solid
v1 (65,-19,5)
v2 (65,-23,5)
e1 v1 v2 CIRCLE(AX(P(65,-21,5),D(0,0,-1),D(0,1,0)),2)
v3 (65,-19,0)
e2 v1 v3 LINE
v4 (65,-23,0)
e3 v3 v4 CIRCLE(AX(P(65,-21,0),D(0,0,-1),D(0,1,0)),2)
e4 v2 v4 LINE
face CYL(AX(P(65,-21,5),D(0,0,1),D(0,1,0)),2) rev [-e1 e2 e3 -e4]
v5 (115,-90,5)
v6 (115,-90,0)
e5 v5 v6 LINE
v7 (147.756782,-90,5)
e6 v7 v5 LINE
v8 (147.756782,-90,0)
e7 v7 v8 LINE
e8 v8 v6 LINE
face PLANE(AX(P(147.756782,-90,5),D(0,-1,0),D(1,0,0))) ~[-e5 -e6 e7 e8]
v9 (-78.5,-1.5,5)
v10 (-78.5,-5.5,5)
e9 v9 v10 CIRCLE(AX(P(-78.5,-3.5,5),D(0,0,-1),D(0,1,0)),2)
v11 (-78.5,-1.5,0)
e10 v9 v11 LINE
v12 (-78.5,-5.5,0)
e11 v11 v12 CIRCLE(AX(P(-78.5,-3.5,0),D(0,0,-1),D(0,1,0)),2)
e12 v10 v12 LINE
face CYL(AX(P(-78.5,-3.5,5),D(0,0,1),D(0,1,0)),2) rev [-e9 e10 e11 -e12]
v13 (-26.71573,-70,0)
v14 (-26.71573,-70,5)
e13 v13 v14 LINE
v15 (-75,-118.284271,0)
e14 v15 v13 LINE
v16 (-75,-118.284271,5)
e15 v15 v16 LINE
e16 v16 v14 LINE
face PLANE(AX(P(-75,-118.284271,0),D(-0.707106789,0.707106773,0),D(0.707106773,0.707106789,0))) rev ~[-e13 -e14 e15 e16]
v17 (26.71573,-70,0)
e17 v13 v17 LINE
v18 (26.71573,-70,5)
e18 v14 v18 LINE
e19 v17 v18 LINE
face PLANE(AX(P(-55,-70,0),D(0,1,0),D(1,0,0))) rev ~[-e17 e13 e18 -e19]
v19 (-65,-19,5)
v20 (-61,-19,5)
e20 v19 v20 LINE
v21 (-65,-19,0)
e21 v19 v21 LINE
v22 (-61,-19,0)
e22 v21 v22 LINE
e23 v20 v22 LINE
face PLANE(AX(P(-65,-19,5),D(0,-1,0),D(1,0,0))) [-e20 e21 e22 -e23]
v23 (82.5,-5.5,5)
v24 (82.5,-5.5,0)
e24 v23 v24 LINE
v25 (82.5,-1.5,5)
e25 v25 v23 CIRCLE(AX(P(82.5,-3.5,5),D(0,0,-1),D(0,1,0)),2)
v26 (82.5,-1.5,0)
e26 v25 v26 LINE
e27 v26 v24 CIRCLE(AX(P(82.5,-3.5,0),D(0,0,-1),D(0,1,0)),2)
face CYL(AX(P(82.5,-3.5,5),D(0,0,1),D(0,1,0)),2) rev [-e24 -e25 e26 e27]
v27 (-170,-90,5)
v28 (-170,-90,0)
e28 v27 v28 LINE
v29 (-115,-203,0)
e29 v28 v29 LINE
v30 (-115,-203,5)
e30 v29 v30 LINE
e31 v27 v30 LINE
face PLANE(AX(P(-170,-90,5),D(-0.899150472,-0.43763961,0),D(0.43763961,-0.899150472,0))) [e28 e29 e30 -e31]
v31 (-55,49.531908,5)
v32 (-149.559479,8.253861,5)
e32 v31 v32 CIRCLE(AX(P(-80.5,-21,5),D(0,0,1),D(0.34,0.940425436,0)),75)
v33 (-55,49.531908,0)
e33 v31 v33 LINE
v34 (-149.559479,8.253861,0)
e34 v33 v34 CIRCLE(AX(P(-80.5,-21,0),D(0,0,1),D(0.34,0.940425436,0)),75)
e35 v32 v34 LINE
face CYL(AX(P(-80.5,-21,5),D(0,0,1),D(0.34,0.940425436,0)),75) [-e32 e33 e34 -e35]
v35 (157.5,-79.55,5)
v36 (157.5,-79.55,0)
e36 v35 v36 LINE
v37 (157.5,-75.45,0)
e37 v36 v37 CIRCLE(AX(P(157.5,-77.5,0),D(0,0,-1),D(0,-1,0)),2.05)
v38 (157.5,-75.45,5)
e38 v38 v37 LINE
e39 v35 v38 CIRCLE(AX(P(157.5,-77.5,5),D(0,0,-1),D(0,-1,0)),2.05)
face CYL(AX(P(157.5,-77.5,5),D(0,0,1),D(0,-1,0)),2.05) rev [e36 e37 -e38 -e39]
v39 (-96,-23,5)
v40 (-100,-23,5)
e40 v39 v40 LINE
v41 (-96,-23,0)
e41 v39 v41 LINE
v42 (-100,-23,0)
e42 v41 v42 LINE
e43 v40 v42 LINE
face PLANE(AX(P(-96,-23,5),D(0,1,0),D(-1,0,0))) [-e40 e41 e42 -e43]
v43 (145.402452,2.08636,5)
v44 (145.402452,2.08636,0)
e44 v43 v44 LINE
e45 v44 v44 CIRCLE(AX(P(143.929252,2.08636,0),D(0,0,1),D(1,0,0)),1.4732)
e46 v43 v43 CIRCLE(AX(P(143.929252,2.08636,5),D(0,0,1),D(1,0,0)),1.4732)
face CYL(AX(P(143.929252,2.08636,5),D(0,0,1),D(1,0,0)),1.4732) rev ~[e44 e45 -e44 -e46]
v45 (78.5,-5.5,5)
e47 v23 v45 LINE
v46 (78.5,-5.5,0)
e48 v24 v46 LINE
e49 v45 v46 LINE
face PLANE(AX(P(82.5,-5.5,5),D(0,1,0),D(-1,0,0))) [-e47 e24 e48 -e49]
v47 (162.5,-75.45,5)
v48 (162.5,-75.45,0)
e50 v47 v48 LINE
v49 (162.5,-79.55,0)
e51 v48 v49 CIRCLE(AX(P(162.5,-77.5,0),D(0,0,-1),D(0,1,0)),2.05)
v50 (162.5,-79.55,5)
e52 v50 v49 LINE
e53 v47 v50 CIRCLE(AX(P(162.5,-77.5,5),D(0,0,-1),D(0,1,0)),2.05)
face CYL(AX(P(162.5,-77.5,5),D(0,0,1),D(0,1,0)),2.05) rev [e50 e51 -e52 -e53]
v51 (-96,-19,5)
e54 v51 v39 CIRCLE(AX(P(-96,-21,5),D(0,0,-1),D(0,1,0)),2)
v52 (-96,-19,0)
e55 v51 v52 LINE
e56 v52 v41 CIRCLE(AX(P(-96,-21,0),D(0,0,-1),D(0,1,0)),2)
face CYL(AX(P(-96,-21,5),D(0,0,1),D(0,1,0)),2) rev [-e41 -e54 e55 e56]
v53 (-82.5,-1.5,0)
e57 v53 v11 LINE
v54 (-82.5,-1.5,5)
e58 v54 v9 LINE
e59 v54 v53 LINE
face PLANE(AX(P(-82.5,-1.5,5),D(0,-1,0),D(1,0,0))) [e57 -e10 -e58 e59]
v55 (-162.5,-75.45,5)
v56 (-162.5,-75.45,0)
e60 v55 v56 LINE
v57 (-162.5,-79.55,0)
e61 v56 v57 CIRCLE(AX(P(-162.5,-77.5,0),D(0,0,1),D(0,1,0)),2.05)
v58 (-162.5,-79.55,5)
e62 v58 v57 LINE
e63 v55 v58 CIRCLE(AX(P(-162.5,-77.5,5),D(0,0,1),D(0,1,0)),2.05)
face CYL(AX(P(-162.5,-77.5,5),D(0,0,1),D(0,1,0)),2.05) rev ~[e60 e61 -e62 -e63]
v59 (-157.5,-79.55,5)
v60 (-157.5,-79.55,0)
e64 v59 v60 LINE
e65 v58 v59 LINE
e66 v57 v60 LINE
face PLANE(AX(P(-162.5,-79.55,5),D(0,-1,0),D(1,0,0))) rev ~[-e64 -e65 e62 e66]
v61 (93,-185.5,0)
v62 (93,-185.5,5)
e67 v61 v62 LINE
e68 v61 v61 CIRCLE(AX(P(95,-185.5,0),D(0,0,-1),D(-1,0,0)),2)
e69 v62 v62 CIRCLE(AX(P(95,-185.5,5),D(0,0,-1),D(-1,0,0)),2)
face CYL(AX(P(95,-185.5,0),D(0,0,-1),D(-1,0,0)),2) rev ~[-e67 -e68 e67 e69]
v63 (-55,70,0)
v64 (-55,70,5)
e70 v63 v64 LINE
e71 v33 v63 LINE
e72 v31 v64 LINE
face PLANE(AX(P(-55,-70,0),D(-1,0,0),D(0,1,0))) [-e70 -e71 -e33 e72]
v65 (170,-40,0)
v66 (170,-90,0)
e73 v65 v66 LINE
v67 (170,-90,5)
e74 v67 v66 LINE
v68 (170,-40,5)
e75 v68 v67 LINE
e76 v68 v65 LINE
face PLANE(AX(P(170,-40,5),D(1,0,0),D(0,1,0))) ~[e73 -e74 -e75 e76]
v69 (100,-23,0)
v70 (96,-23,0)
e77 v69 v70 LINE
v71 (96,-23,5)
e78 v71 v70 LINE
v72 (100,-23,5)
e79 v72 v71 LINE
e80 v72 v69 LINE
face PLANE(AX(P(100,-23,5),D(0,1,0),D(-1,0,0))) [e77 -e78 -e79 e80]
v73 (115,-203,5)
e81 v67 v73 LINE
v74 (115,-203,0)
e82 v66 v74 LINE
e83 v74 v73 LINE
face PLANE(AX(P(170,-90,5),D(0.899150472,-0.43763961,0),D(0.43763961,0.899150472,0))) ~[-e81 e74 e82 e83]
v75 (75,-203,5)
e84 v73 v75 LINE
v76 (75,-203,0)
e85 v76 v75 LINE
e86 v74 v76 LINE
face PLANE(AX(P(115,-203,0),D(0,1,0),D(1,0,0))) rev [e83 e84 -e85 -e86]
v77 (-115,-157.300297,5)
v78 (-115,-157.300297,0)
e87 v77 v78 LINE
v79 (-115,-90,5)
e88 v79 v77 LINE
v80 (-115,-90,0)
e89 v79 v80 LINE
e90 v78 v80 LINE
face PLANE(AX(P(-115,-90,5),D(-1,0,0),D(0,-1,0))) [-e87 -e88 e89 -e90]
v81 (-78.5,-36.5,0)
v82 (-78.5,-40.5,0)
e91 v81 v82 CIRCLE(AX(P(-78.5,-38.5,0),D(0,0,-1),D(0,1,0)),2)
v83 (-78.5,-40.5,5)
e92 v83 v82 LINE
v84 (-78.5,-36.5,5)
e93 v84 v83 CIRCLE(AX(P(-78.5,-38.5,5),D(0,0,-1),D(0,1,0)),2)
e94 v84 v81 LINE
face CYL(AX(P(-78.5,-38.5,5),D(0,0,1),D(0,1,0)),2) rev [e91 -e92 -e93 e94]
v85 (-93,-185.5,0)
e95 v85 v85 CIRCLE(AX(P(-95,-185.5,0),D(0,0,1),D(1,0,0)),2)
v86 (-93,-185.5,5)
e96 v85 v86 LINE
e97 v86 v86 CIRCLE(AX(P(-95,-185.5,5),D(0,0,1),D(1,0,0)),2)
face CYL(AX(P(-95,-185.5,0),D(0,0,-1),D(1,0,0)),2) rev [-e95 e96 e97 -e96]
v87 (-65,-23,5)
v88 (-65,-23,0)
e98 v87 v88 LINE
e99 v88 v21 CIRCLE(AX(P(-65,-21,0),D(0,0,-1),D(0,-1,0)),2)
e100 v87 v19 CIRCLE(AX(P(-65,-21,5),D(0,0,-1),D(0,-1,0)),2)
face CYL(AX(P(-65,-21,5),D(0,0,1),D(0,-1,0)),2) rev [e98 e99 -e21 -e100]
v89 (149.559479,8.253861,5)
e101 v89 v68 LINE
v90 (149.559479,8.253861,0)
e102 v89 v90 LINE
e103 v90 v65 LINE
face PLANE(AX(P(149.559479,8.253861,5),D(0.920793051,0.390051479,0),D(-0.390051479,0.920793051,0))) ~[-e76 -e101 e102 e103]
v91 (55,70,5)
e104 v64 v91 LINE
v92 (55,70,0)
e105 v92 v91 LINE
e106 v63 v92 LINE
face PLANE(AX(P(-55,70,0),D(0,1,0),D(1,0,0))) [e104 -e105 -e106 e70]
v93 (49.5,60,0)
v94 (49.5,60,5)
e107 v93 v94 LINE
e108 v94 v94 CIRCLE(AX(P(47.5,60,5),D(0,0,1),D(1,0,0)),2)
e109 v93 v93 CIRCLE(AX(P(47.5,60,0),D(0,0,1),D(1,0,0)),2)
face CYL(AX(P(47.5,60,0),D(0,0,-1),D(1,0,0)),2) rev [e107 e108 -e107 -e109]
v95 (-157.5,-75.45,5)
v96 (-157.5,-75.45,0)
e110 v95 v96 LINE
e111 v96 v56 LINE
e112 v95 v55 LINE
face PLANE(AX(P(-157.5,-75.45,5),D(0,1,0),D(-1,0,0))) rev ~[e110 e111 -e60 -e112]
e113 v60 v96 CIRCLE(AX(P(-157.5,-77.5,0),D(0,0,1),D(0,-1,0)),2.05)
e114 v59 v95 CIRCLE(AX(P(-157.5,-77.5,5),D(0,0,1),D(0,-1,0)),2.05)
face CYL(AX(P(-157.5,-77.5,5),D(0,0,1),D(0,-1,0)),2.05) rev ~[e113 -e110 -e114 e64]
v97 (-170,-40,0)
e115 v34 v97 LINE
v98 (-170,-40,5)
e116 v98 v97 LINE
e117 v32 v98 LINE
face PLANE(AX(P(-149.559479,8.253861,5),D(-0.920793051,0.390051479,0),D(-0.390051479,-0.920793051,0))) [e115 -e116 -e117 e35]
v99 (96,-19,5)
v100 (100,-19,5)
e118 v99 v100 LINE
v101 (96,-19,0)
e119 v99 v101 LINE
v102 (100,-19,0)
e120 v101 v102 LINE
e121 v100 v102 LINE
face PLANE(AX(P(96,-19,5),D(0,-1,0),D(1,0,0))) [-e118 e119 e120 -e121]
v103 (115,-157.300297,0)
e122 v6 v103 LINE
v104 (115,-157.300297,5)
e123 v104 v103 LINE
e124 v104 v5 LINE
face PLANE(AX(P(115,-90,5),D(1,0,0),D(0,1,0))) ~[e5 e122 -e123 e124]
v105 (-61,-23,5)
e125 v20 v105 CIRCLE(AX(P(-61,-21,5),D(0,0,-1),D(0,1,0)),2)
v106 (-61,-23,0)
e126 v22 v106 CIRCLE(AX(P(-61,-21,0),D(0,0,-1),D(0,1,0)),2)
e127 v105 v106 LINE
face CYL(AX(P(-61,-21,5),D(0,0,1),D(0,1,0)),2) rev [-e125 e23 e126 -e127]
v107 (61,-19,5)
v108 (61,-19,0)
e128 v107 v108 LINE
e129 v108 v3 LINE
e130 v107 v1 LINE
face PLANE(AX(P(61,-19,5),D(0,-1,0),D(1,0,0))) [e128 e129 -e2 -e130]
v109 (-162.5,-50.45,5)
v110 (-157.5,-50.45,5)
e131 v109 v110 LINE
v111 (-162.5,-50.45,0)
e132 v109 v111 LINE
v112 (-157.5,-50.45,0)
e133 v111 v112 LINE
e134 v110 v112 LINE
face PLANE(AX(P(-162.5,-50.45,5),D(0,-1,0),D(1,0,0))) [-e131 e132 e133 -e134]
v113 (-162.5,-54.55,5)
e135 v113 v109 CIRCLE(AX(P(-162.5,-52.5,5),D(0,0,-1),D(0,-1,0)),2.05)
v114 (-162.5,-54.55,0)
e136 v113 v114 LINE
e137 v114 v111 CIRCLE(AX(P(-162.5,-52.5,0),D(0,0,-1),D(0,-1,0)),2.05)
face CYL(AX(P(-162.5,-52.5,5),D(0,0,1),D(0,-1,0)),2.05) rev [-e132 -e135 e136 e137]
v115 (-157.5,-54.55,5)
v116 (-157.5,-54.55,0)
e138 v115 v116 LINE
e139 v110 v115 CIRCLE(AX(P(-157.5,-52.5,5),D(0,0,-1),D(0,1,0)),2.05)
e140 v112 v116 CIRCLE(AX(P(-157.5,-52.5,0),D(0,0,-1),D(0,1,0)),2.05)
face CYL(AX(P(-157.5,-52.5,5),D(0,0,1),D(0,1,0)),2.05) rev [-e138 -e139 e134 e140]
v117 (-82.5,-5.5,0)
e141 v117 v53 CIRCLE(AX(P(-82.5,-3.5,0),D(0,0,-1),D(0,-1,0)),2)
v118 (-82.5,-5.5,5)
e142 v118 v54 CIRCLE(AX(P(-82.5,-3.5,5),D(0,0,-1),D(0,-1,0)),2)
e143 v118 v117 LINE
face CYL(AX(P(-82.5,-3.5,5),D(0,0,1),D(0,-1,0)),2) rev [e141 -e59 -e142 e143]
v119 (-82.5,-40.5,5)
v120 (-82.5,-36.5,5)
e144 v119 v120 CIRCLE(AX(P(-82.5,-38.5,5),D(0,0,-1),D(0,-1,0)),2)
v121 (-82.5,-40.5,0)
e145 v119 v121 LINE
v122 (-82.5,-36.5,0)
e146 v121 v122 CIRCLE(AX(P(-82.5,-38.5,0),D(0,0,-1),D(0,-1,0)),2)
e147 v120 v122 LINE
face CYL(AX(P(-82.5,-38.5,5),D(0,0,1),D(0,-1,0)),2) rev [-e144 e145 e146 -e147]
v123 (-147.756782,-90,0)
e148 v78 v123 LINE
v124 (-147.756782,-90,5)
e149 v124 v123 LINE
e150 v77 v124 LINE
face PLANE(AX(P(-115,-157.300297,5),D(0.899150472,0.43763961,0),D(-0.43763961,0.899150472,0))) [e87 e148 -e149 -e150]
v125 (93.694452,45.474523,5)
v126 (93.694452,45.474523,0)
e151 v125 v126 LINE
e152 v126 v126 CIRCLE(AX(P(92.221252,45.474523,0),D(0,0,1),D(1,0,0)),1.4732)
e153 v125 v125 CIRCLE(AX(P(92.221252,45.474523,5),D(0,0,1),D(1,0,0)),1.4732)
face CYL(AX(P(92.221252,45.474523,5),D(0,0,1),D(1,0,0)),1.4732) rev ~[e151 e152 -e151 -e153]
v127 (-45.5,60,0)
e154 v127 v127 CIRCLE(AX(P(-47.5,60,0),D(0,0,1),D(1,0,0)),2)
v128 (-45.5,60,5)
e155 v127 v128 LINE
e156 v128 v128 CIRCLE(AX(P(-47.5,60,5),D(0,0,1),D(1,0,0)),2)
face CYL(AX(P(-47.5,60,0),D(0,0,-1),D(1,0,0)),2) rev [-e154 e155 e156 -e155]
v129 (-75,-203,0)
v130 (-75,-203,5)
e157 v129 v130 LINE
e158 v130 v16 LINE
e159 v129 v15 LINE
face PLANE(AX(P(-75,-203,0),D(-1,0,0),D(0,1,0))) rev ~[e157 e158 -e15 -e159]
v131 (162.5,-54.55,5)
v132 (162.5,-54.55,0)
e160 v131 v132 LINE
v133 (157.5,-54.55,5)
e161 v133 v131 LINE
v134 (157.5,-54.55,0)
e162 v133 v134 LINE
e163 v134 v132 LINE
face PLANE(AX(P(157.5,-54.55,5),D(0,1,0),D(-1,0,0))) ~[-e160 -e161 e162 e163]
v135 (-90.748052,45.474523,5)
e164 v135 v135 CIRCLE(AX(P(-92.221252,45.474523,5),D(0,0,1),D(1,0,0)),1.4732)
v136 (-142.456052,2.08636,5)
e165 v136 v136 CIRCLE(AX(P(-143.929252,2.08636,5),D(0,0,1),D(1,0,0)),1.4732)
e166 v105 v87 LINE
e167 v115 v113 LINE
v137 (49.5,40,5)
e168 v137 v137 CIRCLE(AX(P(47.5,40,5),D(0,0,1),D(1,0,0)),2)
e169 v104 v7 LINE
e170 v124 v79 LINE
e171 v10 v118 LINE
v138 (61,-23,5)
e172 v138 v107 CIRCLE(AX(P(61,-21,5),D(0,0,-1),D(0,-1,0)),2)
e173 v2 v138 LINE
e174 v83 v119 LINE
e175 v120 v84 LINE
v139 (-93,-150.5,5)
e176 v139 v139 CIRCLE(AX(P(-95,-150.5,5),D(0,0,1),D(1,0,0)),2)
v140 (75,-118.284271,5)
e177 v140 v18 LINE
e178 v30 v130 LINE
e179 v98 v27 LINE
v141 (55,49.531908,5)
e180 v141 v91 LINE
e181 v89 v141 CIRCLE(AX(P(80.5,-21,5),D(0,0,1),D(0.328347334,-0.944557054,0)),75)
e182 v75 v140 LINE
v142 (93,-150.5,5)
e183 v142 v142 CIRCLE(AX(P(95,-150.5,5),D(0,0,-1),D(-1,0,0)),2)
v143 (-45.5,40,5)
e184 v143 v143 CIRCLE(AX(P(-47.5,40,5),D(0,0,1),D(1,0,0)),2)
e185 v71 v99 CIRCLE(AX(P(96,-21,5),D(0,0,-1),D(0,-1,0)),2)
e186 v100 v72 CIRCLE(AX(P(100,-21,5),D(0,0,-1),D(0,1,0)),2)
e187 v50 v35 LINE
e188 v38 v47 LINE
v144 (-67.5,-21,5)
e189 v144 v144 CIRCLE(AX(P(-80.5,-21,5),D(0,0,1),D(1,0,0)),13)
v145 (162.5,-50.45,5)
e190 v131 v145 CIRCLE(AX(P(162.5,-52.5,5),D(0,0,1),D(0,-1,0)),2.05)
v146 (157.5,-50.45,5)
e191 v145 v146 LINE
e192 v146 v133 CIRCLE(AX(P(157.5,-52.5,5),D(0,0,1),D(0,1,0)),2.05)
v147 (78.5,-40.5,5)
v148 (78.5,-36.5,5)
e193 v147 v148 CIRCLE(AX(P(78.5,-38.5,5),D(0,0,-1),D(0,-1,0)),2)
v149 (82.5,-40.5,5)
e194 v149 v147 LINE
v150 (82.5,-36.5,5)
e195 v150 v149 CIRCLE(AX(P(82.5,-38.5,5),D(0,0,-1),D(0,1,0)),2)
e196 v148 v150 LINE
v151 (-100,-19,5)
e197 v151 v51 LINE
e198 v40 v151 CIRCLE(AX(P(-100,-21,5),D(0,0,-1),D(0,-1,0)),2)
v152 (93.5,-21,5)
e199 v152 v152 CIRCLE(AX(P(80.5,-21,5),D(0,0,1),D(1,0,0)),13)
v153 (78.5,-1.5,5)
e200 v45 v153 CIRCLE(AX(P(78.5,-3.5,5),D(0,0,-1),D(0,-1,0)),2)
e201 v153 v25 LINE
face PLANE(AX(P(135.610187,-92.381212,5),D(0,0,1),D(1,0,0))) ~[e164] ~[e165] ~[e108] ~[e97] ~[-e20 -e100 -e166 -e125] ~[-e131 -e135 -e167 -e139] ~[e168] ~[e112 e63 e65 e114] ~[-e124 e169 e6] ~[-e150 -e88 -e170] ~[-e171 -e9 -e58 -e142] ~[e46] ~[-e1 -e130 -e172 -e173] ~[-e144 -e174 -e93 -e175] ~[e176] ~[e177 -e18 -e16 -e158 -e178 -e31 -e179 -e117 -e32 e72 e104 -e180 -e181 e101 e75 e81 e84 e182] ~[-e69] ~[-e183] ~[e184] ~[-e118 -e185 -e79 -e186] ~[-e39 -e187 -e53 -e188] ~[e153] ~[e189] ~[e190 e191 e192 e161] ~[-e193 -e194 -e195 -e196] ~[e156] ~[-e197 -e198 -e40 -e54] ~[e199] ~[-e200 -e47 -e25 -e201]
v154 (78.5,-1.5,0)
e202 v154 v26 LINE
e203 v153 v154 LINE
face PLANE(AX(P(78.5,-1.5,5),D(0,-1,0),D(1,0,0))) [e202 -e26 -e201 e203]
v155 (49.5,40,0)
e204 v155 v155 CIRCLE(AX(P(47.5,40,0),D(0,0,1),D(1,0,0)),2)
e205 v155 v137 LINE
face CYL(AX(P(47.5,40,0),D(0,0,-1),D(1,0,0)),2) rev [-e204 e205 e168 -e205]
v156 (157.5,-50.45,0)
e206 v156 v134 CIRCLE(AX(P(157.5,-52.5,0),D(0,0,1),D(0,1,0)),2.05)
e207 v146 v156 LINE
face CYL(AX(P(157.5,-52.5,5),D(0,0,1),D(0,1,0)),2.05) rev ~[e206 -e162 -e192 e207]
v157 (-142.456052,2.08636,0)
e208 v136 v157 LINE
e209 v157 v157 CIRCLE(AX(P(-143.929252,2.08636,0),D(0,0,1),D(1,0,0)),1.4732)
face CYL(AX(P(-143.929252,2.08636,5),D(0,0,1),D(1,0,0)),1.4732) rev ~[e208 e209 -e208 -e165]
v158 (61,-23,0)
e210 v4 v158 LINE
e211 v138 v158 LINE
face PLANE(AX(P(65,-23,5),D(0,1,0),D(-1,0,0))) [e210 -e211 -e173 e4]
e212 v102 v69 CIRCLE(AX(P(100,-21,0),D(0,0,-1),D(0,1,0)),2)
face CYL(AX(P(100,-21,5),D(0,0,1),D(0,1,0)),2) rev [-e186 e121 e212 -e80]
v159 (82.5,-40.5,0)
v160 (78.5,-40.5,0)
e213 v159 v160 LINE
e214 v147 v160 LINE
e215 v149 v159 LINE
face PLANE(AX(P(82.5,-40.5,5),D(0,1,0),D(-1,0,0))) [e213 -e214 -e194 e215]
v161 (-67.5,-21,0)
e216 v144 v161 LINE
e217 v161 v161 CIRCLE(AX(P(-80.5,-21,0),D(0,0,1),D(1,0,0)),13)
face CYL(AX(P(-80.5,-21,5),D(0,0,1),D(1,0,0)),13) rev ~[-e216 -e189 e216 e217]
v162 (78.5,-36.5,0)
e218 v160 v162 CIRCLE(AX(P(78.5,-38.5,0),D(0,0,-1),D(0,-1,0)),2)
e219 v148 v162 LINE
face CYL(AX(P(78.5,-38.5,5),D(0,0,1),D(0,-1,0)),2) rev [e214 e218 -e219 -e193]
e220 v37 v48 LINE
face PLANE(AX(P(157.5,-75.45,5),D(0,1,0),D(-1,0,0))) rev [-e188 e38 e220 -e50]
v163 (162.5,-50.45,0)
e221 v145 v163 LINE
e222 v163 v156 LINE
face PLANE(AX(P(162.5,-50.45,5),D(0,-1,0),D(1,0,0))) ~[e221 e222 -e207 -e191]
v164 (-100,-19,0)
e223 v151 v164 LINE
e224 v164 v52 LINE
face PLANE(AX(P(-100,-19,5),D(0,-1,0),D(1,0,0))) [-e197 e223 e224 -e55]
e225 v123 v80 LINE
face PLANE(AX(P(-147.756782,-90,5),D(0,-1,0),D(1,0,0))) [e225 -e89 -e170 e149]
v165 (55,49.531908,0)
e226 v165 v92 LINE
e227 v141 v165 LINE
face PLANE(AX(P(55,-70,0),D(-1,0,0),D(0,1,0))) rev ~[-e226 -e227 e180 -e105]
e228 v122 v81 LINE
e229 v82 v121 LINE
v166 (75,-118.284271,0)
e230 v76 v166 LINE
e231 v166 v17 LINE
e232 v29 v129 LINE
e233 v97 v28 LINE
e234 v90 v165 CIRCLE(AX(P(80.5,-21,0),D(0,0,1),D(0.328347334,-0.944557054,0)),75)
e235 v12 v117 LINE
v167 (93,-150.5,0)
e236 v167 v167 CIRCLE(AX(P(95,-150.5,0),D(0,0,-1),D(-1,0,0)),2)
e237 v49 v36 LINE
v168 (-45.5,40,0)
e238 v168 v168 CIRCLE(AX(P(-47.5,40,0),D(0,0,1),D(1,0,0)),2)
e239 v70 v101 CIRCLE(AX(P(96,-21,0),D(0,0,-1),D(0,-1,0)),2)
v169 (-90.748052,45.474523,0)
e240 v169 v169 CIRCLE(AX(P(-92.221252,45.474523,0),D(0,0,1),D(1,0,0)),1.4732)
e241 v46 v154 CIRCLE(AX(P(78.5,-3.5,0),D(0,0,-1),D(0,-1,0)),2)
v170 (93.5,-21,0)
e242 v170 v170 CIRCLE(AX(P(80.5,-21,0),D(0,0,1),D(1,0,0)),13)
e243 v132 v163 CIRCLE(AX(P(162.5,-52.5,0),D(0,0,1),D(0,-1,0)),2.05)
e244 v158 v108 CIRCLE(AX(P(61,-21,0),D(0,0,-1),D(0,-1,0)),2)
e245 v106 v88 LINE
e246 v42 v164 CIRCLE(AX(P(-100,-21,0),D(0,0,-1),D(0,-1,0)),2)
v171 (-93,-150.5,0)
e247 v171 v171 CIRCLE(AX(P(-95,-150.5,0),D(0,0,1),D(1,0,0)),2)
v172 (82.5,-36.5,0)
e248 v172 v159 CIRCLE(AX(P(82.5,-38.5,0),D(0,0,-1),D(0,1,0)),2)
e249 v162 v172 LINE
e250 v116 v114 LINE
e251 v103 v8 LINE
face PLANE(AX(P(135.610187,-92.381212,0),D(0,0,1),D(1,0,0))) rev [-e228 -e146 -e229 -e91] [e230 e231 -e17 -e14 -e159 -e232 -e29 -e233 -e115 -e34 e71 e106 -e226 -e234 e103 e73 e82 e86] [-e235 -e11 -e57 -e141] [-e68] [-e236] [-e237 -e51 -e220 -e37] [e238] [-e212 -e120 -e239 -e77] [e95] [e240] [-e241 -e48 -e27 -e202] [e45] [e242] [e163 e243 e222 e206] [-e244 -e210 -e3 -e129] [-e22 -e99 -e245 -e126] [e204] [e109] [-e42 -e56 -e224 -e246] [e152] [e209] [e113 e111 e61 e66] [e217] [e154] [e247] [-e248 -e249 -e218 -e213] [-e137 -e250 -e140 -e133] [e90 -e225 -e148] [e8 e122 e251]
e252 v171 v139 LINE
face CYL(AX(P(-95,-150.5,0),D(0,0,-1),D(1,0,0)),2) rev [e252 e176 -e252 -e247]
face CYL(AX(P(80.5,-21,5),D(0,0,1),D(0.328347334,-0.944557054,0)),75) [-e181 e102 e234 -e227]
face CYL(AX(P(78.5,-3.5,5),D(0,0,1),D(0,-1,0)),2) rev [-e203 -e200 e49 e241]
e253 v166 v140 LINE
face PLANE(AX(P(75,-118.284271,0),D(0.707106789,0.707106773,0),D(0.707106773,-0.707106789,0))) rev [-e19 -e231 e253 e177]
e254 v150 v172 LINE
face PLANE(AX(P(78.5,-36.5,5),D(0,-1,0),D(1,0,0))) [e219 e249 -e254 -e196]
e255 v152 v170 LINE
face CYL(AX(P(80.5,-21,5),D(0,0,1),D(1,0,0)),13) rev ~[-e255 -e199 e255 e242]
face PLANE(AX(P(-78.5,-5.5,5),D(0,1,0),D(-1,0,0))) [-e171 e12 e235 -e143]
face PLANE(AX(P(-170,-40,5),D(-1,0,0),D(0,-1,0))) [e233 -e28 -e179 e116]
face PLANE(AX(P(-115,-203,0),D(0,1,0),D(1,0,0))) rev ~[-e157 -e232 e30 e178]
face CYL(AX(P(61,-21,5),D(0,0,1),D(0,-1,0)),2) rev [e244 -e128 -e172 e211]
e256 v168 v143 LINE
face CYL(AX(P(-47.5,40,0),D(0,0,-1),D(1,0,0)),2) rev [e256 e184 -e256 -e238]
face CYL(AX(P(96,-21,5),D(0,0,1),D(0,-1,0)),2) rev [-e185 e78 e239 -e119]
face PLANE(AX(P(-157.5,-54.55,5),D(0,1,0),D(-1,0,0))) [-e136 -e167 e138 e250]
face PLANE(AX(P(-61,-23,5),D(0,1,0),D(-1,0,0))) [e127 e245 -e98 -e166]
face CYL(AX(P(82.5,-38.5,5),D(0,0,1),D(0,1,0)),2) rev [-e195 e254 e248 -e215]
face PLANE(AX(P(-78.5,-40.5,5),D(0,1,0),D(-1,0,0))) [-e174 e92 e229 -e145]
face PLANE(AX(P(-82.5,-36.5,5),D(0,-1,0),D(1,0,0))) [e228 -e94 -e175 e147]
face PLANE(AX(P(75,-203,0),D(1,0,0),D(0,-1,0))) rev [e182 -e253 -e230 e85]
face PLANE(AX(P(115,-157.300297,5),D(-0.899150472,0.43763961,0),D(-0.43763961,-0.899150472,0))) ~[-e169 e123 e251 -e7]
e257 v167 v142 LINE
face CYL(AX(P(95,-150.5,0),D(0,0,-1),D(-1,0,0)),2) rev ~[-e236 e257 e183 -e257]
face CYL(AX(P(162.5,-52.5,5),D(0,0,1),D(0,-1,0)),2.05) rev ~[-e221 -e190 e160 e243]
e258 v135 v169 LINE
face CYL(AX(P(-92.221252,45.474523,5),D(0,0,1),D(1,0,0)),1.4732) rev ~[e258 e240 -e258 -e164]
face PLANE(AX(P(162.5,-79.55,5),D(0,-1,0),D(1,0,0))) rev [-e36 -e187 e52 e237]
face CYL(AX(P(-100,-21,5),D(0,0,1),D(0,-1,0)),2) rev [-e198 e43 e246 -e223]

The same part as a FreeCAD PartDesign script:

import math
import FreeCAD as App
import Part
import Sketcher

V = App.Vector
Q = App.Units.Quantity


def add_polygon(sketch, points):
    """Adds a closed chain of lines whose ends are joined by coincident constraints."""
    first, n = sketch.GeometryCount, len(points)
    for a, b in zip(points, points[1:] + points[:1]):
        sketch.addGeometry(Part.LineSegment(App.Vector(*a, 0), App.Vector(*b, 0)), False)
    for i in range(n):
        sketch.addConstraint(Sketcher.Constraint("Coincident", first + i, 2, first + (i + 1) % n, 1))

doc = App.newDocument("Part")
body = doc.addObject("PartDesign::Body", "Body")

# Sketch on XY plane
sketch1 = body.newObject("Sketcher::SketchObject", "Sketch")
sketch1.AttachmentSupport = (doc.getObject("XY_Plane"), [""])
sketch1.MapMode = "FlatFace"
add_polygon(sketch1, [(-55, 70), (-55, -70), (55, -70), (55, 70)])  # lines 0-3
sketch1.addGeometry(Part.Circle(V(-47.5, 40, 0), V(0, 0, 1), 2), False)  # 4
sketch1.addGeometry(Part.Circle(V(47.5, 40, 0), V(0, 0, 1), 2), False)  # 5
sketch1.addGeometry(Part.Circle(V(-47.5, 60, 0), V(0, 0, 1), 2), False)  # 6
sketch1.addGeometry(Part.Circle(V(47.5, 60, 0), V(0, 0, 1), 2), False)  # 7
sketch1.addConstraint(Sketcher.Constraint("Vertical", 0))
sketch1.addConstraint(Sketcher.Constraint("Horizontal", 1))
sketch1.addConstraint(Sketcher.Constraint("Vertical", 2))
sketch1.addConstraint(Sketcher.Constraint("Horizontal", 3))
sketch1.addConstraint(Sketcher.Constraint("Equal", 4, 5))
sketch1.addConstraint(Sketcher.Constraint("Equal", 5, 6))
sketch1.addConstraint(Sketcher.Constraint("Equal", 6, 7))
sketch1.addConstraint(Sketcher.Constraint("Symmetric", 0, 2, 2, 2, -1, 1))
sketch1.addConstraint(Sketcher.Constraint("Symmetric", 4, 3, 5, 3, -2))
sketch1.addConstraint(Sketcher.Constraint("Symmetric", 6, 3, 7, 3, -2))
sketch1.addConstraint(Sketcher.Constraint("Vertical", 4, 3, 6, 3))
sketch1.addConstraint(Sketcher.Constraint("Diameter", 4, Q("4 mm")))
sketch1.addConstraint(Sketcher.Constraint("DistanceX", 1, 1, 1, 2, Q("110 mm")))
sketch1.addConstraint(Sketcher.Constraint("DistanceY", 0, 2, 0, 1, Q("140 mm")))
sketch1.addConstraint(Sketcher.Constraint("DistanceY", -1, 1, 4, 3, Q("40 mm")))
sketch1.addConstraint(Sketcher.Constraint("DistanceY", -1, 1, 6, 3, Q("60 mm")))
sketch1.addConstraint(Sketcher.Constraint("DistanceX", 4, 3, 5, 3, Q("95 mm")))
pad1 = body.newObject("PartDesign::Pad", "Pad")
pad1.Profile = sketch1
pad1.Length = 5

# Sketch on XY plane
sketch2 = body.newObject("Sketcher::SketchObject", "Sketch001")
sketch2.AttachmentSupport = (doc.getObject("XY_Plane"), [""])
sketch2.MapMode = "FlatFace"
add_polygon(sketch2, [(-26.7, -70), (-55, -41.7), (-115, -101.7), (-115, -203), (-75, -203), (-75, -118.3)])  # lines 0-5
sketch2.addGeometry(Part.Circle(V(-95, -185.5, 0), V(0, 0, 1), 2), False)  # 6
sketch2.addGeometry(Part.Circle(V(-95, -150.5, 0), V(0, 0, 1), 2), False)  # 7
sketch2.addConstraint(Sketcher.Constraint("Vertical", 2))
sketch2.addConstraint(Sketcher.Constraint("Horizontal", 3))
sketch2.addConstraint(Sketcher.Constraint("Vertical", 4))
sketch2.addConstraint(Sketcher.Constraint("Equal", 6, 7))
sketch2.addConstraint(Sketcher.Constraint("Perpendicular", 0, 1))
sketch2.addConstraint(Sketcher.Constraint("Parallel", 1, 5))
sketch2.addConstraint(Sketcher.Constraint("Vertical", 6, 3, 7, 3))
sketch2.addConstraint(Sketcher.Constraint("Diameter", 6, Q("4 mm")))
sketch2.addConstraint(Sketcher.Constraint("DistanceX", 3, 1, 3, 2, Q("40 mm")))
sketch2.addConstraint(Sketcher.Constraint("Angle", 0, Q("135 deg")))
sketch2.addConstraint(Sketcher.Constraint("Distance", 0, Q("39.999998 mm")))
sketch2.addConstraint(Sketcher.Constraint("DistanceX", 6, 3, -1, 1, Q("95 mm")))
sketch2.addConstraint(Sketcher.Constraint("DistanceX", 0, 2, -1, 1, Q("55 mm")))
sketch2.addConstraint(Sketcher.Constraint("DistanceX", 1, 2, -1, 1, Q("115 mm")))
sketch2.addConstraint(Sketcher.Constraint("DistanceY", 2, 2, -1, 1, Q("203 mm")))
sketch2.addConstraint(Sketcher.Constraint("DistanceY", 5, 2, -1, 1, Q("70 mm")))
sketch2.addConstraint(Sketcher.Constraint("DistanceY", 6, 3, 7, 3, Q("35 mm")))
sketch2.addConstraint(Sketcher.Constraint("DistanceY", 6, 3, -1, 1, Q("185.5 mm")))
pad2 = body.newObject("PartDesign::Pad", "Pad001")
pad2.Profile = sketch2
pad2.Length = 5
doc.recompute()

mirrored = body.newObject("PartDesign::Mirrored", "Mirrored")
mirrored.Originals = [pad2]
mirrored.MirrorPlane = (doc.getObject("YZ_Plane"), [""])
body.Tip = mirrored

# Sketch on XY plane
sketch3 = body.newObject("Sketcher::SketchObject", "Sketch002")
sketch3.AttachmentSupport = (doc.getObject("XY_Plane"), [""])
sketch3.MapMode = "FlatFace"
sketch3.AttachmentOffset = App.Placement(V(0, 0, 5), App.Rotation())
sketch3.addGeometry(Part.ArcOfCircle(Part.Circle(V(-80.5, -21, 0), V(0, 0, 1), 75), math.radians(70), math.radians(251)), False)
sketch3.addGeometry(Part.LineSegment(V(-105.1, -91.8, 0), V(-55, -41.7, 0)), False)
sketch3.addGeometry(Part.LineSegment(V(-55, -41.7, 0), V(-55, 49.5, 0)), False)
sketch3.addGeometry(Part.Circle(V(-143.9, 2.1, 0), V(0, 0, 1), 1.5), False)
sketch3.addGeometry(Part.LineSegment(V(-100, -19, 0), V(-96, -19, 0)), False)
sketch3.addGeometry(Part.ArcOfCircle(Part.Circle(V(-96, -21, 0), V(0, 0, 1), 2), math.radians(-90), math.radians(90)), False)
sketch3.addGeometry(Part.LineSegment(V(-96, -23, 0), V(-100, -23, 0)), False)
sketch3.addGeometry(Part.ArcOfCircle(Part.Circle(V(-100, -21, 0), V(0, 0, 1), 2), math.radians(90), math.radians(270)), False)
sketch3.addGeometry(Part.ArcOfCircle(Part.Circle(V(-78.5, -38.5, 0), V(0, 0, 1), 2), math.radians(-90), math.radians(90)), False)
sketch3.addGeometry(Part.LineSegment(V(-78.5, -40.5, 0), V(-82.5, -40.5, 0)), False)
sketch3.addGeometry(Part.ArcOfCircle(Part.Circle(V(-82.5, -38.5, 0), V(0, 0, 1), 2), math.radians(90), math.radians(270)), False)
sketch3.addGeometry(Part.LineSegment(V(-82.5, -36.5, 0), V(-78.5, -36.5, 0)), False)
sketch3.addGeometry(Part.Circle(V(-80.5, -21, 0), V(0, 0, 1), 13), False)
sketch3.addGeometry(Part.LineSegment(V(-61, -23, 0), V(-65, -23, 0)), False)
sketch3.addGeometry(Part.ArcOfCircle(Part.Circle(V(-65, -21, 0), V(0, 0, 1), 2), math.radians(90), math.radians(270)), False)
sketch3.addGeometry(Part.LineSegment(V(-65, -19, 0), V(-61, -19, 0)), False)
sketch3.addGeometry(Part.ArcOfCircle(Part.Circle(V(-61, -21, 0), V(0, 0, 1), 2), math.radians(-90), math.radians(90)), False)
sketch3.addGeometry(Part.LineSegment(V(-78.5, -5.5, 0), V(-82.5, -5.5, 0)), False)
sketch3.addGeometry(Part.ArcOfCircle(Part.Circle(V(-82.5, -3.5, 0), V(0, 0, 1), 2), math.radians(90), math.radians(270)), False)
sketch3.addGeometry(Part.LineSegment(V(-82.5, -1.5, 0), V(-78.5, -1.5, 0)), False)
sketch3.addGeometry(Part.ArcOfCircle(Part.Circle(V(-78.5, -3.5, 0), V(0, 0, 1), 2), math.radians(-90), math.radians(90)), False)
sketch3.addGeometry(Part.Circle(V(-92.2, 45.5, 0), V(0, 0, 1), 1.5), False)
sketch3.addGeometry(Part.ArcOfCircle(Part.Circle(V(80.5, -21, 0), V(0, 0, 1), 75), math.radians(-71), math.radians(110)), False)
sketch3.addGeometry(Part.LineSegment(V(55, 49.5, 0), V(55, -41.7, 0)), False)
sketch3.addGeometry(Part.LineSegment(V(55, -41.7, 0), V(105.1, -91.8, 0)), False)
sketch3.addGeometry(Part.LineSegment(V(78.5, -36.5, 0), V(82.5, -36.5, 0)), False)
sketch3.addGeometry(Part.ArcOfCircle(Part.Circle(V(82.5, -38.5, 0), V(0, 0, 1), 2), math.radians(-90), math.radians(90)), False)
sketch3.addGeometry(Part.LineSegment(V(82.5, -40.5, 0), V(78.5, -40.5, 0)), False)
sketch3.addGeometry(Part.ArcOfCircle(Part.Circle(V(78.5, -38.5, 0), V(0, 0, 1), 2), math.radians(90), math.radians(270)), False)
sketch3.addGeometry(Part.LineSegment(V(61, -19, 0), V(65, -19, 0)), False)
sketch3.addGeometry(Part.ArcOfCircle(Part.Circle(V(65, -21, 0), V(0, 0, 1), 2), math.radians(-90), math.radians(90)), False)
sketch3.addGeometry(Part.LineSegment(V(65, -23, 0), V(61, -23, 0)), False)
sketch3.addGeometry(Part.ArcOfCircle(Part.Circle(V(61, -21, 0), V(0, 0, 1), 2), math.radians(90), math.radians(270)), False)
sketch3.addGeometry(Part.Circle(V(80.5, -21, 0), V(0, 0, 1), 13), False)
sketch3.addGeometry(Part.ArcOfCircle(Part.Circle(V(100, -21, 0), V(0, 0, 1), 2), math.radians(-90), math.radians(90)), False)
sketch3.addGeometry(Part.LineSegment(V(100, -23, 0), V(96, -23, 0)), False)
sketch3.addGeometry(Part.ArcOfCircle(Part.Circle(V(96, -21, 0), V(0, 0, 1), 2), math.radians(90), math.radians(270)), False)
sketch3.addGeometry(Part.LineSegment(V(96, -19, 0), V(100, -19, 0)), False)
sketch3.addGeometry(Part.LineSegment(V(78.5, -1.5, 0), V(82.5, -1.5, 0)), False)
sketch3.addGeometry(Part.ArcOfCircle(Part.Circle(V(82.5, -3.5, 0), V(0, 0, 1), 2), math.radians(-90), math.radians(90)), False)
sketch3.addGeometry(Part.LineSegment(V(82.5, -5.5, 0), V(78.5, -5.5, 0)), False)
sketch3.addGeometry(Part.ArcOfCircle(Part.Circle(V(78.5, -3.5, 0), V(0, 0, 1), 2), math.radians(90), math.radians(270)), False)
sketch3.addGeometry(Part.Circle(V(143.9, 2.1, 0), V(0, 0, 1), 1.5), False)
sketch3.addGeometry(Part.Circle(V(92.2, 45.5, 0), V(0, 0, 1), 1.5), False)
sketch3.addConstraint(Sketcher.Constraint("Coincident", 0, 2, 1, 1))
sketch3.addConstraint(Sketcher.Constraint("Coincident", 1, 2, 2, 1))
sketch3.addConstraint(Sketcher.Constraint("Coincident", 2, 2, 0, 1))
sketch3.addConstraint(Sketcher.Constraint("Tangent", 4, 2, 5, 2))
sketch3.addConstraint(Sketcher.Constraint("Tangent", 5, 1, 6, 1))
sketch3.addConstraint(Sketcher.Constraint("Tangent", 6, 2, 7, 2))
sketch3.addConstraint(Sketcher.Constraint("Tangent", 7, 1, 4, 1))
sketch3.addConstraint(Sketcher.Constraint("Tangent", 8, 1, 9, 1))
sketch3.addConstraint(Sketcher.Constraint("Tangent", 9, 2, 10, 2))
sketch3.addConstraint(Sketcher.Constraint("Tangent", 10, 1, 11, 1))
sketch3.addConstraint(Sketcher.Constraint("Tangent", 11, 2, 8, 2))
sketch3.addConstraint(Sketcher.Constraint("Tangent", 13, 2, 14, 2))
sketch3.addConstraint(Sketcher.Constraint("Tangent", 14, 1, 15, 1))
sketch3.addConstraint(Sketcher.Constraint("Tangent", 15, 2, 16, 2))
sketch3.addConstraint(Sketcher.Constraint("Tangent", 16, 1, 13, 1))
sketch3.addConstraint(Sketcher.Constraint("Tangent", 17, 2, 18, 2))
sketch3.addConstraint(Sketcher.Constraint("Tangent", 18, 1, 19, 1))
sketch3.addConstraint(Sketcher.Constraint("Tangent", 19, 2, 20, 2))
sketch3.addConstraint(Sketcher.Constraint("Tangent", 20, 1, 17, 1))
sketch3.addConstraint(Sketcher.Constraint("Coincident", 22, 2, 23, 1))
sketch3.addConstraint(Sketcher.Constraint("Coincident", 23, 2, 24, 1))
sketch3.addConstraint(Sketcher.Constraint("Coincident", 24, 2, 22, 1))
sketch3.addConstraint(Sketcher.Constraint("Tangent", 25, 2, 26, 2))
sketch3.addConstraint(Sketcher.Constraint("Tangent", 26, 1, 27, 1))
sketch3.addConstraint(Sketcher.Constraint("Tangent", 27, 2, 28, 2))
sketch3.addConstraint(Sketcher.Constraint("Tangent", 28, 1, 25, 1))
sketch3.addConstraint(Sketcher.Constraint("Tangent", 29, 2, 30, 2))
sketch3.addConstraint(Sketcher.Constraint("Tangent", 30, 1, 31, 1))
sketch3.addConstraint(Sketcher.Constraint("Tangent", 31, 2, 32, 2))
sketch3.addConstraint(Sketcher.Constraint("Tangent", 32, 1, 29, 1))
sketch3.addConstraint(Sketcher.Constraint("Tangent", 34, 1, 35, 1))
sketch3.addConstraint(Sketcher.Constraint("Tangent", 35, 2, 36, 2))
sketch3.addConstraint(Sketcher.Constraint("Tangent", 36, 1, 37, 1))
sketch3.addConstraint(Sketcher.Constraint("Tangent", 37, 2, 34, 2))
sketch3.addConstraint(Sketcher.Constraint("Tangent", 38, 2, 39, 2))
sketch3.addConstraint(Sketcher.Constraint("Tangent", 39, 1, 40, 1))
sketch3.addConstraint(Sketcher.Constraint("Tangent", 40, 2, 41, 2))
sketch3.addConstraint(Sketcher.Constraint("Tangent", 41, 1, 38, 1))
sketch3.addConstraint(Sketcher.Constraint("Vertical", 2))
sketch3.addConstraint(Sketcher.Constraint("Horizontal", 4))
sketch3.addConstraint(Sketcher.Constraint("Horizontal", 6))
sketch3.addConstraint(Sketcher.Constraint("Horizontal", 9))
sketch3.addConstraint(Sketcher.Constraint("Horizontal", 11))
sketch3.addConstraint(Sketcher.Constraint("Horizontal", 13))
sketch3.addConstraint(Sketcher.Constraint("Horizontal", 15))
sketch3.addConstraint(Sketcher.Constraint("Horizontal", 17))
sketch3.addConstraint(Sketcher.Constraint("Horizontal", 19))
sketch3.addConstraint(Sketcher.Constraint("Vertical", 23))
sketch3.addConstraint(Sketcher.Constraint("Horizontal", 25))
sketch3.addConstraint(Sketcher.Constraint("Horizontal", 27))
sketch3.addConstraint(Sketcher.Constraint("Horizontal", 29))
sketch3.addConstraint(Sketcher.Constraint("Horizontal", 31))
sketch3.addConstraint(Sketcher.Constraint("Horizontal", 35))
sketch3.addConstraint(Sketcher.Constraint("Horizontal", 37))
sketch3.addConstraint(Sketcher.Constraint("Horizontal", 38))
sketch3.addConstraint(Sketcher.Constraint("Horizontal", 40))
sketch3.addConstraint(Sketcher.Constraint("Coincident", 12, 3, 0, 3))
sketch3.addConstraint(Sketcher.Constraint("Coincident", 33, 3, 22, 3))
sketch3.addConstraint(Sketcher.Constraint("Equal", 7, 8))
sketch3.addConstraint(Sketcher.Constraint("Equal", 10, 14))
sketch3.addConstraint(Sketcher.Constraint("Equal", 16, 18))
sketch3.addConstraint(Sketcher.Constraint("Equal", 3, 21))
sketch3.addConstraint(Sketcher.Constraint("Equal", 0, 22))
sketch3.addConstraint(Sketcher.Constraint("Equal", 20, 26))
sketch3.addConstraint(Sketcher.Constraint("Equal", 28, 30))
sketch3.addConstraint(Sketcher.Constraint("Equal", 12, 33))
sketch3.addConstraint(Sketcher.Constraint("Equal", 32, 34))
sketch3.addConstraint(Sketcher.Constraint("Equal", 36, 39))
sketch3.addConstraint(Sketcher.Constraint("Equal", 21, 42))
sketch3.addConstraint(Sketcher.Constraint("Equal", 42, 43))
sketch3.addConstraint(Sketcher.Constraint("Symmetric", 0, 3, 22, 3, -2))
sketch3.addConstraint(Sketcher.Constraint("Symmetric", 10, 3, 26, 3, -2))
sketch3.addConstraint(Sketcher.Constraint("Symmetric", 14, 3, 30, 3, -2))
sketch3.addConstraint(Sketcher.Constraint("Symmetric", 7, 3, 34, 3, -2))
sketch3.addConstraint(Sketcher.Constraint("Symmetric", 18, 3, 39, 3, -2))
sketch3.addConstraint(Sketcher.Constraint("Symmetric", 3, 3, 42, 3, -2))
sketch3.addConstraint(Sketcher.Constraint("Symmetric", 21, 3, 43, 3, -2))
sketch3.addConstraint(Sketcher.Constraint("Symmetric", 1, 2, 23, 2, -2))
sketch3.addConstraint(Sketcher.Constraint("Perpendicular", 1, 24))
sketch3.addConstraint(Sketcher.Constraint("Horizontal", 0, 3, 5, 3))
sketch3.addConstraint(Sketcher.Constraint("Horizontal", 12, 3, 14, 3))
sketch3.addConstraint(Sketcher.Constraint("Horizontal", 0, 2, 24, 2))
sketch3.addConstraint(Sketcher.Constraint("Vertical", 10, 3, 18, 3))
sketch3.addConstraint(Sketcher.Constraint("Vertical", 8, 3, 20, 3))
sketch3.addConstraint(Sketcher.Constraint("Vertical", 28, 3, 41, 3))
sketch3.addConstraint(Sketcher.Constraint("Equal", 6, 9))
sketch3.addConstraint(Sketcher.Constraint("Equal", 11, 13))
sketch3.addConstraint(Sketcher.Constraint("Equal", 19, 25))
sketch3.addConstraint(Sketcher.Constraint("Equal", 27, 29))
sketch3.addConstraint(Sketcher.Constraint("Equal", 31, 35))
sketch3.addConstraint(Sketcher.Constraint("Diameter", 12, Q("26 mm")))
sketch3.addConstraint(Sketcher.Constraint("Radius", 0, Q("75 mm")))
sketch3.addConstraint(Sketcher.Constraint("Radius", 5, Q("2 mm")))
sketch3.addConstraint(Sketcher.Constraint("DistanceX", 4, 1, 4, 2, Q("4 mm")))
sketch3.addConstraint(Sketcher.Constraint("DistanceY", 0, 3, -1, 1, Q("21 mm")))
sketch3.addConstraint(Sketcher.Constraint("DistanceX", 5, 3, -1, 1, Q("96 mm")))
sketch3.addConstraint(Sketcher.Constraint("DistanceX", 14, 3, -1, 1, Q("65 mm")))
sketch3.addConstraint(Sketcher.Constraint("DistanceX", 1, 2, -1, 1, Q("55 mm")))
sketch3.addConstraint(Sketcher.Constraint("Diameter", 3, Q("2.9464 mm")))
sketch3.addConstraint(Sketcher.Constraint("DistanceX", 0, 3, -1, 1, Q("80.5 mm")))
sketch3.addConstraint(Sketcher.Constraint("DistanceX", 8, 3, -1, 1, Q("78.5 mm")))
sketch3.addConstraint(Sketcher.Constraint("DistanceY", 8, 3, -1, 1, Q("38.5 mm")))
sketch3.addConstraint(Sketcher.Constraint("DistanceY", 18, 3, -1, 1, Q("3.5 mm")))
sketch3.addConstraint(Sketcher.Constraint("Distance", 1, Q("70.888939 mm")))
sketch3.addConstraint(Sketcher.Constraint("DistanceX", 3, 3, -1, 1, Q("143.929252 mm")))
sketch3.addConstraint(Sketcher.Constraint("DistanceY", -1, 1, 3, 3, Q("2.08636 mm")))
sketch3.addConstraint(Sketcher.Constraint("DistanceX", 21, 3, -1, 1, Q("92.221252 mm")))
sketch3.addConstraint(Sketcher.Constraint("DistanceY", -1, 1, 21, 3, Q("45.474523 mm")))
pad3 = body.newObject("PartDesign::Pad", "Pad002")
pad3.Profile = sketch3
pad3.Length = 5
pad3.Reversed = True

# Sketch on XY plane
sketch4 = body.newObject("Sketcher::SketchObject", "Sketch003")
sketch4.AttachmentSupport = (doc.getObject("XY_Plane"), [""])
sketch4.MapMode = "FlatFace"
sketch4.AttachmentOffset = App.Placement(V(0, 0, 5), App.Rotation())
sketch4.addGeometry(Part.LineSegment(V(-170, -90, 0), V(-115, -203, 0)), False)
sketch4.addGeometry(Part.LineSegment(V(-115, -203, 0), V(-115, -157.3, 0)), False)
sketch4.addGeometry(Part.LineSegment(V(-115, -157.3, 0), V(-147.8, -90, 0)), False)
sketch4.addGeometry(Part.LineSegment(V(-147.8, -90, 0), V(-115, -90, 0)), False)
sketch4.addGeometry(Part.LineSegment(V(-115, -90, 0), V(-115, -101.7, 0)), False)
sketch4.addGeometry(Part.LineSegment(V(-115, -101.7, 0), V(-100, -101.7, 0)), False)
sketch4.addGeometry(Part.LineSegment(V(-100, -101.7, 0), V(-100, -40, 0)), False)
sketch4.addGeometry(Part.LineSegment(V(-100, -40, 0), V(-153.1, -40, 0)), False)
sketch4.addGeometry(Part.ArcOfCircle(Part.Circle(V(-80.5, -21, 0), V(0, 0, 1), 75), math.radians(157), math.radians(195)), False)
sketch4.addGeometry(Part.LineSegment(V(-149.6, 8.3, 0), V(-170, -40, 0)), False)
sketch4.addGeometry(Part.LineSegment(V(-170, -40, 0), V(-170, -90, 0)), False)
sketch4.addGeometry(Part.LineSegment(V(-162.5, -75.5, 0), V(-157.5, -75.5, 0)), False)
sketch4.addGeometry(Part.ArcOfCircle(Part.Circle(V(-157.5, -77.5, 0), V(0, 0, 1), 2), math.radians(-90), math.radians(90)), False)
sketch4.addGeometry(Part.LineSegment(V(-157.5, -79.5, 0), V(-162.5, -79.5, 0)), False)
sketch4.addGeometry(Part.ArcOfCircle(Part.Circle(V(-162.5, -77.5, 0), V(0, 0, 1), 2), math.radians(90), math.radians(270)), False)
sketch4.addGeometry(Part.ArcOfCircle(Part.Circle(V(-157.5, -52.5, 0), V(0, 0, 1), 2), math.radians(-90), math.radians(90)), False)
sketch4.addGeometry(Part.LineSegment(V(-157.5, -54.5, 0), V(-162.5, -54.5, 0)), False)
sketch4.addGeometry(Part.ArcOfCircle(Part.Circle(V(-162.5, -52.5, 0), V(0, 0, 1), 2), math.radians(90), math.radians(270)), False)
sketch4.addGeometry(Part.LineSegment(V(-162.5, -50.5, 0), V(-157.5, -50.5, 0)), False)
sketch4.addConstraint(Sketcher.Constraint("Coincident", 0, 2, 1, 1))
sketch4.addConstraint(Sketcher.Constraint("Coincident", 1, 2, 2, 1))
sketch4.addConstraint(Sketcher.Constraint("Coincident", 2, 2, 3, 1))
sketch4.addConstraint(Sketcher.Constraint("Coincident", 3, 2, 4, 1))
sketch4.addConstraint(Sketcher.Constraint("Coincident", 4, 2, 5, 1))
sketch4.addConstraint(Sketcher.Constraint("Coincident", 5, 2, 6, 1))
sketch4.addConstraint(Sketcher.Constraint("Coincident", 6, 2, 7, 1))
sketch4.addConstraint(Sketcher.Constraint("Coincident", 7, 2, 8, 2))
sketch4.addConstraint(Sketcher.Constraint("Tangent", 8, 1, 9, 1))
sketch4.addConstraint(Sketcher.Constraint("Coincident", 9, 2, 10, 1))
sketch4.addConstraint(Sketcher.Constraint("Coincident", 10, 2, 0, 1))
sketch4.addConstraint(Sketcher.Constraint("Tangent", 11, 2, 12, 2))
sketch4.addConstraint(Sketcher.Constraint("Tangent", 12, 1, 13, 1))
sketch4.addConstraint(Sketcher.Constraint("Tangent", 13, 2, 14, 2))
sketch4.addConstraint(Sketcher.Constraint("Tangent", 14, 1, 11, 1))
sketch4.addConstraint(Sketcher.Constraint("Tangent", 15, 1, 16, 1))
sketch4.addConstraint(Sketcher.Constraint("Tangent", 16, 2, 17, 2))
sketch4.addConstraint(Sketcher.Constraint("Tangent", 17, 1, 18, 1))
sketch4.addConstraint(Sketcher.Constraint("Tangent", 18, 2, 15, 2))
sketch4.addConstraint(Sketcher.Constraint("Vertical", 1))
sketch4.addConstraint(Sketcher.Constraint("Horizontal", 3))
sketch4.addConstraint(Sketcher.Constraint("Vertical", 4))
sketch4.addConstraint(Sketcher.Constraint("Horizontal", 5))
sketch4.addConstraint(Sketcher.Constraint("Vertical", 6))
sketch4.addConstraint(Sketcher.Constraint("Horizontal", 7))
sketch4.addConstraint(Sketcher.Constraint("Vertical", 10))
sketch4.addConstraint(Sketcher.Constraint("Horizontal", 11))
sketch4.addConstraint(Sketcher.Constraint("Horizontal", 13))
sketch4.addConstraint(Sketcher.Constraint("Horizontal", 16))
sketch4.addConstraint(Sketcher.Constraint("Horizontal", 18))
sketch4.addConstraint(Sketcher.Constraint("Equal", 14, 15))
sketch4.addConstraint(Sketcher.Constraint("Parallel", 0, 2))
sketch4.addConstraint(Sketcher.Constraint("Horizontal", 7, 2, 9, 2))
sketch4.addConstraint(Sketcher.Constraint("Horizontal", 3, 2, 10, 2))
sketch4.addConstraint(Sketcher.Constraint("Vertical", 12, 3, 15, 3))
sketch4.addConstraint(Sketcher.Constraint("Vertical", 14, 3, 17, 3))
sketch4.addConstraint(Sketcher.Constraint("Vertical", 1, 2, 3, 2))
sketch4.addConstraint(Sketcher.Constraint("Radius", 8, Q("75 mm")))
sketch4.addConstraint(Sketcher.Constraint("DistanceX", 5, 1, 5, 2, Q("15 mm")))
sketch4.addConstraint(Sketcher.Constraint("DistanceX", 11, 1, 11, 2, Q("5 mm")))
sketch4.addConstraint(Sketcher.Constraint("DistanceY", 10, 2, 10, 1, Q("50 mm")))
sketch4.addConstraint(Sketcher.Constraint("Radius", 12, Q("2.05 mm")))
sketch4.addConstraint(Sketcher.Constraint("DistanceY", 8, 3, -1, 1, Q("21 mm")))
sketch4.addConstraint(Sketcher.Constraint("DistanceX", 0, 2, -1, 1, Q("115 mm")))
sketch4.addConstraint(Sketcher.Constraint("DistanceY", 0, 2, -1, 1, Q("203 mm")))
sketch4.addConstraint(Sketcher.Constraint("DistanceY", 2, 2, -1, 1, Q("90 mm")))
sketch4.addConstraint(Sketcher.Constraint("DistanceX", 9, 2, -1, 1, Q("170 mm")))
sketch4.addConstraint(Sketcher.Constraint("DistanceX", 12, 3, 8, 3, Q("77 mm")))
sketch4.addConstraint(Sketcher.Constraint("DistanceY", 12, 3, 15, 3, Q("25 mm")))
sketch4.addConstraint(Sketcher.Constraint("DistanceX", 8, 3, -1, 1, Q("80.5 mm")))
sketch4.addConstraint(Sketcher.Constraint("DistanceY", 12, 3, -1, 1, Q("77.5 mm")))
sketch4.addConstraint(Sketcher.Constraint("DistanceX", 3, 1, 3, 2, Q("32.756782 mm")))
sketch4.addConstraint(Sketcher.Constraint("DistanceY", 4, 2, 4, 1, Q("11.715729 mm")))
pad4 = body.newObject("PartDesign::Pad", "Pad003")
pad4.Profile = sketch4
pad4.Length = 5
pad4.Reversed = True
doc.recompute()

mirrored2 = body.newObject("PartDesign::Mirrored", "Mirrored001")
mirrored2.Originals = [pad4]
mirrored2.MirrorPlane = (doc.getObject("YZ_Plane"), [""])
body.Tip = mirrored2

doc.recompute()
